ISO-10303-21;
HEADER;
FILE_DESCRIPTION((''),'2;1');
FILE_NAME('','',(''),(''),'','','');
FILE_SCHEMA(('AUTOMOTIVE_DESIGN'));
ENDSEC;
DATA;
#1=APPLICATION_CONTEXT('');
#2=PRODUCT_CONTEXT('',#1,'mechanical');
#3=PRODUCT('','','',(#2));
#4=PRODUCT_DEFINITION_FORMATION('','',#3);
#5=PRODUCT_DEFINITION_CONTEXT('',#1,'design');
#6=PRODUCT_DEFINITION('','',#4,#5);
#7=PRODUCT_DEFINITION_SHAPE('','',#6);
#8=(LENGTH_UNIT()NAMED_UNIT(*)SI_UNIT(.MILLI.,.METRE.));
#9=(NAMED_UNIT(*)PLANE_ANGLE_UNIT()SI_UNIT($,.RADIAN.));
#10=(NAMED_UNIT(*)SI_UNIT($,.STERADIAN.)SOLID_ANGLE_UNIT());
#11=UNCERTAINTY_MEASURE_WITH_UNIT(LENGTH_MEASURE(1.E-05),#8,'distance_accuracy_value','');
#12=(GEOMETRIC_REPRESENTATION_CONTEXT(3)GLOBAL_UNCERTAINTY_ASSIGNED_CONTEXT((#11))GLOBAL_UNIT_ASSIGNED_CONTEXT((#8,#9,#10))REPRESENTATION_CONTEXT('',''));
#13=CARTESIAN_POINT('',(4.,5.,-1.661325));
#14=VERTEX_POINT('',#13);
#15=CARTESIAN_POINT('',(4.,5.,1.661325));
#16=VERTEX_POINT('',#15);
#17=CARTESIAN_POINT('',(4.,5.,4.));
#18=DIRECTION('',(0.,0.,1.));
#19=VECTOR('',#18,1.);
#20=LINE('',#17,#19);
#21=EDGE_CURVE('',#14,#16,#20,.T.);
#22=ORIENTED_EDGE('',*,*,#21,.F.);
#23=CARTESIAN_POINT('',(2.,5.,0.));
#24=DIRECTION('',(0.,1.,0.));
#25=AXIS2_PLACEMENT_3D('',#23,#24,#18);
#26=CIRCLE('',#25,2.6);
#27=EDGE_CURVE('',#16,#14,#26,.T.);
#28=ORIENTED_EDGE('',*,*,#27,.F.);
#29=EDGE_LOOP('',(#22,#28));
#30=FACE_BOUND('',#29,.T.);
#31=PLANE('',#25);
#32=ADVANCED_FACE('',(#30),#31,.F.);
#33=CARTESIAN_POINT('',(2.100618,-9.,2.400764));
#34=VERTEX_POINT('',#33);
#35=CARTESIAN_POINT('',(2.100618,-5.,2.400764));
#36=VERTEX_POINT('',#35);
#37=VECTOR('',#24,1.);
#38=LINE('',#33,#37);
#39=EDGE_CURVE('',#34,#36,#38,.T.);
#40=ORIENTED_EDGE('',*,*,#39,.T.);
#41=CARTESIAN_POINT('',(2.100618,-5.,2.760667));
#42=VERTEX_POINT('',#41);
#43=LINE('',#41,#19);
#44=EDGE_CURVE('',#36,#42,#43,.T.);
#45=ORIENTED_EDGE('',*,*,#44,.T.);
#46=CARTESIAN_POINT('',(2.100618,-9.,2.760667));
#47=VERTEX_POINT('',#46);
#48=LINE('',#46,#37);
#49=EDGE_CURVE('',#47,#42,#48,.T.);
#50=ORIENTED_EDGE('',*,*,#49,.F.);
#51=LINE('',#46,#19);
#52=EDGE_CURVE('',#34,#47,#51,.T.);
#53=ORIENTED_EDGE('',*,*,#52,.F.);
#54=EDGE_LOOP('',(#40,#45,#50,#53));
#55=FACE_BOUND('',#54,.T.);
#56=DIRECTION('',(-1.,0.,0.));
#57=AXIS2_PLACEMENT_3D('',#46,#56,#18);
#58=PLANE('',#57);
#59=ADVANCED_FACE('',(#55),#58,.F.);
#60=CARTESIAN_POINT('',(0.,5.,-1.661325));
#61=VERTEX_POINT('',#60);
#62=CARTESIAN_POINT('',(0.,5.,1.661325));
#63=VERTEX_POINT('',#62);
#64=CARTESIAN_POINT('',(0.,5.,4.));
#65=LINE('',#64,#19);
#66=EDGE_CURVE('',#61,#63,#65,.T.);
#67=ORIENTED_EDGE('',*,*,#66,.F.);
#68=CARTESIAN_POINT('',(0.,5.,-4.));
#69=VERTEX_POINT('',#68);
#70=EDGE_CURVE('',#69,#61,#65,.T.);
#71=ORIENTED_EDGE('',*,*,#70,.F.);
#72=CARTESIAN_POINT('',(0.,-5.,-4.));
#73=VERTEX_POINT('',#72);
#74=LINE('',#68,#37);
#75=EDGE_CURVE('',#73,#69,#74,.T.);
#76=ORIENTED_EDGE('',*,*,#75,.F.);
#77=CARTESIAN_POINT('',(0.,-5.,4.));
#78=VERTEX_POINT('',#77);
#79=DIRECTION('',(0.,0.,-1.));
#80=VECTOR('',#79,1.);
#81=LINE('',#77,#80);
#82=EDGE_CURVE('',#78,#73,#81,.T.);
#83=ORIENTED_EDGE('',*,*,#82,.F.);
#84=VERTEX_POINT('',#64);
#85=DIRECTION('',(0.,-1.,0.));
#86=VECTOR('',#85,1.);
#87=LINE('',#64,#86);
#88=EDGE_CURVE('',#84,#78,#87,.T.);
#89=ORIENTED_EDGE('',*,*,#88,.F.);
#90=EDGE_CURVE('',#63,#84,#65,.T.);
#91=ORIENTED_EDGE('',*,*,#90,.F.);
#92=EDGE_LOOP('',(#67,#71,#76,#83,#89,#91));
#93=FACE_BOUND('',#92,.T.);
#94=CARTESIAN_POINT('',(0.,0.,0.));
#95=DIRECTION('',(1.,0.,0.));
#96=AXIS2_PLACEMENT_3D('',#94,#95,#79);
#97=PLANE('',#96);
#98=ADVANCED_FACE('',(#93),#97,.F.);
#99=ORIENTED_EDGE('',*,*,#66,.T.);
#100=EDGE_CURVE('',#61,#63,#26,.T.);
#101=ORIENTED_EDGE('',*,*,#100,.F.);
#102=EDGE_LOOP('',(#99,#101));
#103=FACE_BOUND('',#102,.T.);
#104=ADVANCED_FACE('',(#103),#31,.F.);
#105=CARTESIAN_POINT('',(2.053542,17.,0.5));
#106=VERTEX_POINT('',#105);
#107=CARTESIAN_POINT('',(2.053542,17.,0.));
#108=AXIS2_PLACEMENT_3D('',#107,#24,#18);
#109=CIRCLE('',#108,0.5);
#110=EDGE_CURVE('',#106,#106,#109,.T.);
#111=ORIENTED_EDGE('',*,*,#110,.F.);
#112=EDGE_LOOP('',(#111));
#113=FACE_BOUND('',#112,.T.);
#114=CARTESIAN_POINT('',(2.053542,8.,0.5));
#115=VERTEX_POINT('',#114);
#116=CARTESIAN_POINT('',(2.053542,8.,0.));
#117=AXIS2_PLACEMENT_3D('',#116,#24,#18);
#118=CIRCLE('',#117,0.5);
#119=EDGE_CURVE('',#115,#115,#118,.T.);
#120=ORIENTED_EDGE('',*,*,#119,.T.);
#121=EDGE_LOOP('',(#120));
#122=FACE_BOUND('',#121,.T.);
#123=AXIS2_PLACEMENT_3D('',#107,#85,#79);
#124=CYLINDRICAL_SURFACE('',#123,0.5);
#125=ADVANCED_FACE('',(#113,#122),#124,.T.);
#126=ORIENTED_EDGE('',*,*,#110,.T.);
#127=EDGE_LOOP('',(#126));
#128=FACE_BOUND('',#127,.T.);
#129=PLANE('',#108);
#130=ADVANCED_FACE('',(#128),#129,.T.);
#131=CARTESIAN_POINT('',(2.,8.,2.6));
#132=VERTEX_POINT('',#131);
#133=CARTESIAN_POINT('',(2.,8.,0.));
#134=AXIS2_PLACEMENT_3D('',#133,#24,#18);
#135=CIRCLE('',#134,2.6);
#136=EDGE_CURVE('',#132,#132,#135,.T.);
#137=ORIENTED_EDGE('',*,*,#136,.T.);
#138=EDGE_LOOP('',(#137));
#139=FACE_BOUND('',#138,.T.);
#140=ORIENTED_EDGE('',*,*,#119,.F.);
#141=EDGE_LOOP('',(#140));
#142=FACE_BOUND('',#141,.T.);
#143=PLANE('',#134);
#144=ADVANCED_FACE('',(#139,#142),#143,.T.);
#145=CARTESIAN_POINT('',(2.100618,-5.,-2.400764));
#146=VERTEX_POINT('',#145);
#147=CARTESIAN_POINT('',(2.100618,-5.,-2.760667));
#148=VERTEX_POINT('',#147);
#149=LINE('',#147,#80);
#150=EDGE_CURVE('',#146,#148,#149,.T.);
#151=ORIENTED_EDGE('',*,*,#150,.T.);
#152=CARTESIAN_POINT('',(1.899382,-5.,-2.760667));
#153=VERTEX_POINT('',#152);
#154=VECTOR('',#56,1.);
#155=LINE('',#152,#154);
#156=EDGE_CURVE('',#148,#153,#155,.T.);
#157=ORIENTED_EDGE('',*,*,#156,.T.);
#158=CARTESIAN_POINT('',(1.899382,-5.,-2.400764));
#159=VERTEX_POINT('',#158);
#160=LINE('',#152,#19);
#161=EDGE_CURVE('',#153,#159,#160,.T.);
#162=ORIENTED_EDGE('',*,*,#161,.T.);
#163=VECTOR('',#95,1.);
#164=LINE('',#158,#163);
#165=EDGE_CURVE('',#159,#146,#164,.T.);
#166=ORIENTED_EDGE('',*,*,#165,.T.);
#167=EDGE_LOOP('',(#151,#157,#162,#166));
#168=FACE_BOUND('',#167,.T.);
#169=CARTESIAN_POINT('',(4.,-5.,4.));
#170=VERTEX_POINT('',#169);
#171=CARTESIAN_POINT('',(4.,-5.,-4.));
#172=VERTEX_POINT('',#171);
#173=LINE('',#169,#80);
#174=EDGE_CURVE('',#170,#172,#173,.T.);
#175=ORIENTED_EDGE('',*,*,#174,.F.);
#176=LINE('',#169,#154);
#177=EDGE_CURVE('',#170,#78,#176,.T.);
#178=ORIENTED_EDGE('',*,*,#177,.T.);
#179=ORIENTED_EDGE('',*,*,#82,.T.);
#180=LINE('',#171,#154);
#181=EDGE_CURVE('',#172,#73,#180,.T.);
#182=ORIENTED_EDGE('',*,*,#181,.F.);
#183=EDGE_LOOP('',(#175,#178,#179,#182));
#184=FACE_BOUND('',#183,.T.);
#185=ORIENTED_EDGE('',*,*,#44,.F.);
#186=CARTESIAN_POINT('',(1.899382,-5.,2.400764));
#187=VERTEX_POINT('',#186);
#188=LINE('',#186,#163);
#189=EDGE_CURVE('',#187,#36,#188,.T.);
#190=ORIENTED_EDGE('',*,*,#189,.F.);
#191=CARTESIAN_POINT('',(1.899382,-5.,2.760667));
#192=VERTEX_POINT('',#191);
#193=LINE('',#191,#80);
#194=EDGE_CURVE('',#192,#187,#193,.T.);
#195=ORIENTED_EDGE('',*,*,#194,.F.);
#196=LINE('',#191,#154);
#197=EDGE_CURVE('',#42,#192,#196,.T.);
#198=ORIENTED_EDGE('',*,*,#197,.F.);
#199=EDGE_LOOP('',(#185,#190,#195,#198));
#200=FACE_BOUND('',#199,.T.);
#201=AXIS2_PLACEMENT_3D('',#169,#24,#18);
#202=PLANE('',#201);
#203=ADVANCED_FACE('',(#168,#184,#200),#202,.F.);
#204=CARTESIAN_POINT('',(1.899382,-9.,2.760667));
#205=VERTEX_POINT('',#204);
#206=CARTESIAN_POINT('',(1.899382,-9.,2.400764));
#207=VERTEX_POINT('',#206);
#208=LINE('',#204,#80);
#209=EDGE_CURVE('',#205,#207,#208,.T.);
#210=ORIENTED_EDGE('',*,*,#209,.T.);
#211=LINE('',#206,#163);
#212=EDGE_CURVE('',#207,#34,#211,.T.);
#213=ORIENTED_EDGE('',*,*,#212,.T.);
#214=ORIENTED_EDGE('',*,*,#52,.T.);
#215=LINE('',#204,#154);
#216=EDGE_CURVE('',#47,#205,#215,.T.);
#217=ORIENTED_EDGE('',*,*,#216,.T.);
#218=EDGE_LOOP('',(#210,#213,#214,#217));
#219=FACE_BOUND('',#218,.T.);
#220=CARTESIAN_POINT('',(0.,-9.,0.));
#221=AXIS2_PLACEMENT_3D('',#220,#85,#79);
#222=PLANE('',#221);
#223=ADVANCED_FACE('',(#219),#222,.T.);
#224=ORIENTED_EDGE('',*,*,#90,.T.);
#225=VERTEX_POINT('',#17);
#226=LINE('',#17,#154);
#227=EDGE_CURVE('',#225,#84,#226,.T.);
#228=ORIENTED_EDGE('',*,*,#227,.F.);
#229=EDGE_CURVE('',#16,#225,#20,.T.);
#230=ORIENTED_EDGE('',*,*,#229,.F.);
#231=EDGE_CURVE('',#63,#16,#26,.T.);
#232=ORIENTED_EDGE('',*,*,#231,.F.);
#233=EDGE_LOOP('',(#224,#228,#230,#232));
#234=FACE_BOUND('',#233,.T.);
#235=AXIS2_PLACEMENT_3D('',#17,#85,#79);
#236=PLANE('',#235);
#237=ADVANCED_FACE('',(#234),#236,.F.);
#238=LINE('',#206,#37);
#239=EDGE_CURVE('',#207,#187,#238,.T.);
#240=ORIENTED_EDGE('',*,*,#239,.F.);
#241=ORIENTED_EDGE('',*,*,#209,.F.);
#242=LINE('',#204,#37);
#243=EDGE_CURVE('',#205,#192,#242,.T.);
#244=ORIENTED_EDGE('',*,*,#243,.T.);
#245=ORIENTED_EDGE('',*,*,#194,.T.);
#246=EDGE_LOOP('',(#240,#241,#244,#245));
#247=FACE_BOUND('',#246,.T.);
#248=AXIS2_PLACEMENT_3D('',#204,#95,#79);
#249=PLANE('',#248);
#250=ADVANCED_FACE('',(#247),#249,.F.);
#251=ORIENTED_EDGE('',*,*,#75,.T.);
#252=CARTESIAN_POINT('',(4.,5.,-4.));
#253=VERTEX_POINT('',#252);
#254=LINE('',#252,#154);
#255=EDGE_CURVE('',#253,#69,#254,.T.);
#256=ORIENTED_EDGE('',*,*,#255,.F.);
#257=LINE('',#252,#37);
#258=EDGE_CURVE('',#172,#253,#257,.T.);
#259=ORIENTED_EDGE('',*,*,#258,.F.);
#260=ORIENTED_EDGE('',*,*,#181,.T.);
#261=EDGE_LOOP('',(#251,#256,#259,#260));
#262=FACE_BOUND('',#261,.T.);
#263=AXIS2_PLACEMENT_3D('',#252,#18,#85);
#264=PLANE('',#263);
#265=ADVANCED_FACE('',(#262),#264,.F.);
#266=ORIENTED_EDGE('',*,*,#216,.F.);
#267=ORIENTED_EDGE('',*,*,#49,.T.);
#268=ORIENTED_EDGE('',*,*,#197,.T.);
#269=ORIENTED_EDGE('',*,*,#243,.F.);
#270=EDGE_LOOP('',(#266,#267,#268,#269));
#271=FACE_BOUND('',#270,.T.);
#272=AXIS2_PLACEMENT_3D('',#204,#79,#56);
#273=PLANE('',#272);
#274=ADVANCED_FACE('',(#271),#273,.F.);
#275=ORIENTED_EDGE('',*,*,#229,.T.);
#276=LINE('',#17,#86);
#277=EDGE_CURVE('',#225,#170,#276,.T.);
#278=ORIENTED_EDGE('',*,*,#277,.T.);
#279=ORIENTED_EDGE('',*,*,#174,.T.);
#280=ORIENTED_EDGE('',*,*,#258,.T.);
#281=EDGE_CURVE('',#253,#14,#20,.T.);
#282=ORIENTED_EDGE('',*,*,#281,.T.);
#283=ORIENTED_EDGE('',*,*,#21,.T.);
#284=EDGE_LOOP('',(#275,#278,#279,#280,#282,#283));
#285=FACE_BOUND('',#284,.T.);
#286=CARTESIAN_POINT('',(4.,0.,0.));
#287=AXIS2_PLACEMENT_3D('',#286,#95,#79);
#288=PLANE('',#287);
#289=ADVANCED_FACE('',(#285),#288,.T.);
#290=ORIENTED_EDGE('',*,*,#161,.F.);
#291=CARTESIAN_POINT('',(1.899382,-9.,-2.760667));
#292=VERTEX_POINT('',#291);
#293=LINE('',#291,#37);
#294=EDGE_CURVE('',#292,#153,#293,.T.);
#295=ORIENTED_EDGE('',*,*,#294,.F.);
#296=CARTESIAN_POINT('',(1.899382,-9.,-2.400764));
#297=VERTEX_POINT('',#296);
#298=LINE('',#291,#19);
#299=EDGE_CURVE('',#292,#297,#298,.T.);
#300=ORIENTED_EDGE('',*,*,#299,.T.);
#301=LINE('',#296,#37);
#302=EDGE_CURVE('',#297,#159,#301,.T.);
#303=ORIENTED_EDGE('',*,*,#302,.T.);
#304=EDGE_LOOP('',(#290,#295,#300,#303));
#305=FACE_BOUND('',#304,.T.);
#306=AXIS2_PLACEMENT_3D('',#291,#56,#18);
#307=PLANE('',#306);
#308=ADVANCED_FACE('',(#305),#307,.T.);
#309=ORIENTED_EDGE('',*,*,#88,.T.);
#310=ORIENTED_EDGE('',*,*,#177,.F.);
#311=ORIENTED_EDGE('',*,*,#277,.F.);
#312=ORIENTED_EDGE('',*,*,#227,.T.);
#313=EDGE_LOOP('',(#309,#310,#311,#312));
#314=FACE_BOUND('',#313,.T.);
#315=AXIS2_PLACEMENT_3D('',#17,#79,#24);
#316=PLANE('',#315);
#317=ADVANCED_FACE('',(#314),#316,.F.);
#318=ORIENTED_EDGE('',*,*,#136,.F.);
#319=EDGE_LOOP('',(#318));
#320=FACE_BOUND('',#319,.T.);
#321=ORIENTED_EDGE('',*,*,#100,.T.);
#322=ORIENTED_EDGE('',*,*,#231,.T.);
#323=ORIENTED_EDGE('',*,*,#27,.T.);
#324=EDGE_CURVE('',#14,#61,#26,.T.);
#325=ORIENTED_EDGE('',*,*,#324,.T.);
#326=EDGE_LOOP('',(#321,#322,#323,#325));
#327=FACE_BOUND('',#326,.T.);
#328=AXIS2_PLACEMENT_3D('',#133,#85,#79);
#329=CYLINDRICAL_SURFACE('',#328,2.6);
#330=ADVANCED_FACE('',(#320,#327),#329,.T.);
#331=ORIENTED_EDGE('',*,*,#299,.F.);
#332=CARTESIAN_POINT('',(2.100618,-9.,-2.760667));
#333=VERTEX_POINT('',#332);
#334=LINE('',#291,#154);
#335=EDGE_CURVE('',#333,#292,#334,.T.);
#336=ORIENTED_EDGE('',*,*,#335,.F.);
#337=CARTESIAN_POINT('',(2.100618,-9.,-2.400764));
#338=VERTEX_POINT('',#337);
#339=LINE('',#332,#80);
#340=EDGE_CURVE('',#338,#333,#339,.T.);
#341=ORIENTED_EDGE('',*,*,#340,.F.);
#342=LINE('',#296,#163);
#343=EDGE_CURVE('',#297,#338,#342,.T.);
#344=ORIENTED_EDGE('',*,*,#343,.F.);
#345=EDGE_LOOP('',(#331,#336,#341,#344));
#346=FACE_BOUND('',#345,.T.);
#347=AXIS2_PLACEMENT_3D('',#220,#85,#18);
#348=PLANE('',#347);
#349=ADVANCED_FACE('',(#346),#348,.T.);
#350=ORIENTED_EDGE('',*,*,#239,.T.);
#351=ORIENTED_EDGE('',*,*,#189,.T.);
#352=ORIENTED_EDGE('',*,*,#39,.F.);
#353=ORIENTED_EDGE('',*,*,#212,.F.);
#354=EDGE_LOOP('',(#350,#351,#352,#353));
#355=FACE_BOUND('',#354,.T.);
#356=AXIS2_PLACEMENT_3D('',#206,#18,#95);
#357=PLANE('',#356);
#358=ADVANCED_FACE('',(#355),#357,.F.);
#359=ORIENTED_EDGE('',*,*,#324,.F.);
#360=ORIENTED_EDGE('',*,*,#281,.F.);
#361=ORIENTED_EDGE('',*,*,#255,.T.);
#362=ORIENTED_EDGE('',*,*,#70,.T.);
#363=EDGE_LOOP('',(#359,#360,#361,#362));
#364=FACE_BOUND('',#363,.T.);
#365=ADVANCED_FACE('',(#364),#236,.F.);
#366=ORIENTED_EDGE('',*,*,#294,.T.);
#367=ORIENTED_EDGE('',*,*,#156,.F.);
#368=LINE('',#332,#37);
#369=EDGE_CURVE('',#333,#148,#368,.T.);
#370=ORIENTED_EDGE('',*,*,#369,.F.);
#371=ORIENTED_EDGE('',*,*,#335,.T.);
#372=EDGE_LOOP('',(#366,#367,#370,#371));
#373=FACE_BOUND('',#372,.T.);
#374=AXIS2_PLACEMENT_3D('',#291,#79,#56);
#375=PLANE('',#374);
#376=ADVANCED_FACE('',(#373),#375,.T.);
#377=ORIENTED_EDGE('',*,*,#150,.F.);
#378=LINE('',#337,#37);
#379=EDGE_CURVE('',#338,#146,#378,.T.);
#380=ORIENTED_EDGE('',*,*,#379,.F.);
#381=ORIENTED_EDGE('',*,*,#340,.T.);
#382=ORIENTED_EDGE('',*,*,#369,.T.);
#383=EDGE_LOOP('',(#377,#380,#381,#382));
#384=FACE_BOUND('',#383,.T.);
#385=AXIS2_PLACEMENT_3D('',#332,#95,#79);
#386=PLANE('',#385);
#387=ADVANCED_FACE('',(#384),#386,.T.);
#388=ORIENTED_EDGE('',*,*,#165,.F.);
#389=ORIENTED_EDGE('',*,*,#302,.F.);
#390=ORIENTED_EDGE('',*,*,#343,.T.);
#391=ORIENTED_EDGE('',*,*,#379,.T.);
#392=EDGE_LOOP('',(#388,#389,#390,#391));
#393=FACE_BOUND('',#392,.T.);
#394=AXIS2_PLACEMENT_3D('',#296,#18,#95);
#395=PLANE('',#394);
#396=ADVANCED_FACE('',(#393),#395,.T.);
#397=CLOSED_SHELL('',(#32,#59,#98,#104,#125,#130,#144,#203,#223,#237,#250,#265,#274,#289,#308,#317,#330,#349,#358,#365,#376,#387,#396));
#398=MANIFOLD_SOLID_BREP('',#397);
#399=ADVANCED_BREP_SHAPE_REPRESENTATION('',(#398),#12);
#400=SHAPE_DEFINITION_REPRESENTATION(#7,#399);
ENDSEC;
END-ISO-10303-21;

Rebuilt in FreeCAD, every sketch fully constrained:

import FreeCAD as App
import Part
import Sketcher
from FreeCAD import Vector
Q = App.Units.Quantity


def add_polygon(sketch, points):
    """Adds a closed chain of lines whose ends are joined by coincident constraints."""
    first, n = sketch.GeometryCount, len(points)
    for a, b in zip(points, points[1:] + points[:1]):
        sketch.addGeometry(Part.LineSegment(App.Vector(*a, 0), App.Vector(*b, 0)), False)
    for i in range(n):
        sketch.addConstraint(Sketcher.Constraint("Coincident", first + i, 2, first + (i + 1) % n, 1))

doc = App.newDocument("Part")
body = doc.addObject("PartDesign::Body", "Body")

# Sketch on YZ plane
sketch1 = body.newObject("Sketcher::SketchObject", "Sketch")
sketch1.AttachmentSupport = (doc.getObject("YZ_Plane"), [""])
sketch1.MapMode = "FlatFace"
add_polygon(sketch1, [(5, 4), (-5, 4), (-5, -4), (5, -4)])  # lines 0-3
sketch1.addConstraint([
    Sketcher.Constraint("Horizontal", 0),
    Sketcher.Constraint("Vertical", 1),
    Sketcher.Constraint("Horizontal", 2),
    Sketcher.Constraint("Vertical", 3),
    Sketcher.Constraint("Symmetric", 0, 2, 2, 2, -1, 1),
    Sketcher.Constraint("DistanceX", 0, 2, 0, 1, Q("10 mm")),
    Sketcher.Constraint("DistanceY", 1, 2, 1, 1, Q("8 mm")),
])
pad1 = body.newObject("PartDesign::Pad", "Pad")
pad1.Profile = sketch1
pad1.Length = 4

# Sketch on XZ plane
sketch2 = body.newObject("Sketcher::SketchObject", "Sketch001")
sketch2.AttachmentSupport = (doc.getObject("XZ_Plane"), [""])
sketch2.MapMode = "FlatFace"
sketch2.AttachmentOffset = App.Placement(Vector(0, 0, 5), App.Rotation())
add_polygon(sketch2, [(1.9, 2.76), (1.9, 2.4), (2.1, 2.4), (2.1, 2.76)])  # lines 0-3
sketch2.addConstraint([
    Sketcher.Constraint("Vertical", 0),
    Sketcher.Constraint("Horizontal", 1),
    Sketcher.Constraint("Vertical", 2),
    Sketcher.Constraint("Horizontal", 3),
    Sketcher.Constraint("DistanceX", 1, 1, 1, 2, Q("0.201236 mm")),
    Sketcher.Constraint("DistanceY", 0, 2, 0, 1, Q("0.359903 mm")),
    Sketcher.Constraint("DistanceX", -1, 1, 0, 2, Q("1.899382 mm")),
    Sketcher.Constraint("DistanceY", -1, 1, 0, 2, Q("2.400764 mm")),
])
pad2 = body.newObject("PartDesign::Pad", "Pad001")
pad2.Profile = sketch2
pad2.Length = 4
doc.recompute()

mirrored = body.newObject("PartDesign::Mirrored", "Mirrored")
mirrored.Originals = [pad2]
mirrored.MirrorPlane = (doc.getObject("XY_Plane"), [""])
body.Tip = mirrored

# Sketch on XZ plane
sketch3 = body.newObject("Sketcher::SketchObject", "Sketch002")
sketch3.AttachmentSupport = (doc.getObject("XZ_Plane"), [""])
sketch3.MapMode = "FlatFace"
sketch3.AttachmentOffset = App.Placement(Vector(0, 0, -5), App.Rotation())
sketch3.addGeometry(Part.Circle(Vector(2, 0, 0), Vector(0, 0, 1), 2.6), False)
sketch3.addConstraint([
    Sketcher.Constraint("PointOnObject", 0, 3, -1),
    Sketcher.Constraint("Diameter", 0, Q("5.2 mm")),
    Sketcher.Constraint("DistanceX", -1, 1, 0, 3, Q("2 mm")),
])
pad3 = body.newObject("PartDesign::Pad", "Pad002")
pad3.Profile = sketch3
pad3.Length = 3
pad3.Reversed = True

# Sketch on XZ plane
sketch4 = body.newObject("Sketcher::SketchObject", "Sketch003")
sketch4.AttachmentSupport = (doc.getObject("XZ_Plane"), [""])
sketch4.MapMode = "FlatFace"
sketch4.AttachmentOffset = App.Placement(Vector(0, 0, -8), App.Rotation())
sketch4.addGeometry(Part.Circle(Vector(2.1, 0, 0), Vector(0, 0, 1), 0.5), False)
sketch4.addConstraint([
    Sketcher.Constraint("PointOnObject", 0, 3, -1),
    Sketcher.Constraint("Diameter", 0, Q("1 mm")),
    Sketcher.Constraint("DistanceX", -1, 1, 0, 3, Q("2.053542 mm")),
])
pad4 = body.newObject("PartDesign::Pad", "Pad003")
pad4.Profile = sketch4
pad4.Length = 9
pad4.Reversed = True

doc.recompute()
